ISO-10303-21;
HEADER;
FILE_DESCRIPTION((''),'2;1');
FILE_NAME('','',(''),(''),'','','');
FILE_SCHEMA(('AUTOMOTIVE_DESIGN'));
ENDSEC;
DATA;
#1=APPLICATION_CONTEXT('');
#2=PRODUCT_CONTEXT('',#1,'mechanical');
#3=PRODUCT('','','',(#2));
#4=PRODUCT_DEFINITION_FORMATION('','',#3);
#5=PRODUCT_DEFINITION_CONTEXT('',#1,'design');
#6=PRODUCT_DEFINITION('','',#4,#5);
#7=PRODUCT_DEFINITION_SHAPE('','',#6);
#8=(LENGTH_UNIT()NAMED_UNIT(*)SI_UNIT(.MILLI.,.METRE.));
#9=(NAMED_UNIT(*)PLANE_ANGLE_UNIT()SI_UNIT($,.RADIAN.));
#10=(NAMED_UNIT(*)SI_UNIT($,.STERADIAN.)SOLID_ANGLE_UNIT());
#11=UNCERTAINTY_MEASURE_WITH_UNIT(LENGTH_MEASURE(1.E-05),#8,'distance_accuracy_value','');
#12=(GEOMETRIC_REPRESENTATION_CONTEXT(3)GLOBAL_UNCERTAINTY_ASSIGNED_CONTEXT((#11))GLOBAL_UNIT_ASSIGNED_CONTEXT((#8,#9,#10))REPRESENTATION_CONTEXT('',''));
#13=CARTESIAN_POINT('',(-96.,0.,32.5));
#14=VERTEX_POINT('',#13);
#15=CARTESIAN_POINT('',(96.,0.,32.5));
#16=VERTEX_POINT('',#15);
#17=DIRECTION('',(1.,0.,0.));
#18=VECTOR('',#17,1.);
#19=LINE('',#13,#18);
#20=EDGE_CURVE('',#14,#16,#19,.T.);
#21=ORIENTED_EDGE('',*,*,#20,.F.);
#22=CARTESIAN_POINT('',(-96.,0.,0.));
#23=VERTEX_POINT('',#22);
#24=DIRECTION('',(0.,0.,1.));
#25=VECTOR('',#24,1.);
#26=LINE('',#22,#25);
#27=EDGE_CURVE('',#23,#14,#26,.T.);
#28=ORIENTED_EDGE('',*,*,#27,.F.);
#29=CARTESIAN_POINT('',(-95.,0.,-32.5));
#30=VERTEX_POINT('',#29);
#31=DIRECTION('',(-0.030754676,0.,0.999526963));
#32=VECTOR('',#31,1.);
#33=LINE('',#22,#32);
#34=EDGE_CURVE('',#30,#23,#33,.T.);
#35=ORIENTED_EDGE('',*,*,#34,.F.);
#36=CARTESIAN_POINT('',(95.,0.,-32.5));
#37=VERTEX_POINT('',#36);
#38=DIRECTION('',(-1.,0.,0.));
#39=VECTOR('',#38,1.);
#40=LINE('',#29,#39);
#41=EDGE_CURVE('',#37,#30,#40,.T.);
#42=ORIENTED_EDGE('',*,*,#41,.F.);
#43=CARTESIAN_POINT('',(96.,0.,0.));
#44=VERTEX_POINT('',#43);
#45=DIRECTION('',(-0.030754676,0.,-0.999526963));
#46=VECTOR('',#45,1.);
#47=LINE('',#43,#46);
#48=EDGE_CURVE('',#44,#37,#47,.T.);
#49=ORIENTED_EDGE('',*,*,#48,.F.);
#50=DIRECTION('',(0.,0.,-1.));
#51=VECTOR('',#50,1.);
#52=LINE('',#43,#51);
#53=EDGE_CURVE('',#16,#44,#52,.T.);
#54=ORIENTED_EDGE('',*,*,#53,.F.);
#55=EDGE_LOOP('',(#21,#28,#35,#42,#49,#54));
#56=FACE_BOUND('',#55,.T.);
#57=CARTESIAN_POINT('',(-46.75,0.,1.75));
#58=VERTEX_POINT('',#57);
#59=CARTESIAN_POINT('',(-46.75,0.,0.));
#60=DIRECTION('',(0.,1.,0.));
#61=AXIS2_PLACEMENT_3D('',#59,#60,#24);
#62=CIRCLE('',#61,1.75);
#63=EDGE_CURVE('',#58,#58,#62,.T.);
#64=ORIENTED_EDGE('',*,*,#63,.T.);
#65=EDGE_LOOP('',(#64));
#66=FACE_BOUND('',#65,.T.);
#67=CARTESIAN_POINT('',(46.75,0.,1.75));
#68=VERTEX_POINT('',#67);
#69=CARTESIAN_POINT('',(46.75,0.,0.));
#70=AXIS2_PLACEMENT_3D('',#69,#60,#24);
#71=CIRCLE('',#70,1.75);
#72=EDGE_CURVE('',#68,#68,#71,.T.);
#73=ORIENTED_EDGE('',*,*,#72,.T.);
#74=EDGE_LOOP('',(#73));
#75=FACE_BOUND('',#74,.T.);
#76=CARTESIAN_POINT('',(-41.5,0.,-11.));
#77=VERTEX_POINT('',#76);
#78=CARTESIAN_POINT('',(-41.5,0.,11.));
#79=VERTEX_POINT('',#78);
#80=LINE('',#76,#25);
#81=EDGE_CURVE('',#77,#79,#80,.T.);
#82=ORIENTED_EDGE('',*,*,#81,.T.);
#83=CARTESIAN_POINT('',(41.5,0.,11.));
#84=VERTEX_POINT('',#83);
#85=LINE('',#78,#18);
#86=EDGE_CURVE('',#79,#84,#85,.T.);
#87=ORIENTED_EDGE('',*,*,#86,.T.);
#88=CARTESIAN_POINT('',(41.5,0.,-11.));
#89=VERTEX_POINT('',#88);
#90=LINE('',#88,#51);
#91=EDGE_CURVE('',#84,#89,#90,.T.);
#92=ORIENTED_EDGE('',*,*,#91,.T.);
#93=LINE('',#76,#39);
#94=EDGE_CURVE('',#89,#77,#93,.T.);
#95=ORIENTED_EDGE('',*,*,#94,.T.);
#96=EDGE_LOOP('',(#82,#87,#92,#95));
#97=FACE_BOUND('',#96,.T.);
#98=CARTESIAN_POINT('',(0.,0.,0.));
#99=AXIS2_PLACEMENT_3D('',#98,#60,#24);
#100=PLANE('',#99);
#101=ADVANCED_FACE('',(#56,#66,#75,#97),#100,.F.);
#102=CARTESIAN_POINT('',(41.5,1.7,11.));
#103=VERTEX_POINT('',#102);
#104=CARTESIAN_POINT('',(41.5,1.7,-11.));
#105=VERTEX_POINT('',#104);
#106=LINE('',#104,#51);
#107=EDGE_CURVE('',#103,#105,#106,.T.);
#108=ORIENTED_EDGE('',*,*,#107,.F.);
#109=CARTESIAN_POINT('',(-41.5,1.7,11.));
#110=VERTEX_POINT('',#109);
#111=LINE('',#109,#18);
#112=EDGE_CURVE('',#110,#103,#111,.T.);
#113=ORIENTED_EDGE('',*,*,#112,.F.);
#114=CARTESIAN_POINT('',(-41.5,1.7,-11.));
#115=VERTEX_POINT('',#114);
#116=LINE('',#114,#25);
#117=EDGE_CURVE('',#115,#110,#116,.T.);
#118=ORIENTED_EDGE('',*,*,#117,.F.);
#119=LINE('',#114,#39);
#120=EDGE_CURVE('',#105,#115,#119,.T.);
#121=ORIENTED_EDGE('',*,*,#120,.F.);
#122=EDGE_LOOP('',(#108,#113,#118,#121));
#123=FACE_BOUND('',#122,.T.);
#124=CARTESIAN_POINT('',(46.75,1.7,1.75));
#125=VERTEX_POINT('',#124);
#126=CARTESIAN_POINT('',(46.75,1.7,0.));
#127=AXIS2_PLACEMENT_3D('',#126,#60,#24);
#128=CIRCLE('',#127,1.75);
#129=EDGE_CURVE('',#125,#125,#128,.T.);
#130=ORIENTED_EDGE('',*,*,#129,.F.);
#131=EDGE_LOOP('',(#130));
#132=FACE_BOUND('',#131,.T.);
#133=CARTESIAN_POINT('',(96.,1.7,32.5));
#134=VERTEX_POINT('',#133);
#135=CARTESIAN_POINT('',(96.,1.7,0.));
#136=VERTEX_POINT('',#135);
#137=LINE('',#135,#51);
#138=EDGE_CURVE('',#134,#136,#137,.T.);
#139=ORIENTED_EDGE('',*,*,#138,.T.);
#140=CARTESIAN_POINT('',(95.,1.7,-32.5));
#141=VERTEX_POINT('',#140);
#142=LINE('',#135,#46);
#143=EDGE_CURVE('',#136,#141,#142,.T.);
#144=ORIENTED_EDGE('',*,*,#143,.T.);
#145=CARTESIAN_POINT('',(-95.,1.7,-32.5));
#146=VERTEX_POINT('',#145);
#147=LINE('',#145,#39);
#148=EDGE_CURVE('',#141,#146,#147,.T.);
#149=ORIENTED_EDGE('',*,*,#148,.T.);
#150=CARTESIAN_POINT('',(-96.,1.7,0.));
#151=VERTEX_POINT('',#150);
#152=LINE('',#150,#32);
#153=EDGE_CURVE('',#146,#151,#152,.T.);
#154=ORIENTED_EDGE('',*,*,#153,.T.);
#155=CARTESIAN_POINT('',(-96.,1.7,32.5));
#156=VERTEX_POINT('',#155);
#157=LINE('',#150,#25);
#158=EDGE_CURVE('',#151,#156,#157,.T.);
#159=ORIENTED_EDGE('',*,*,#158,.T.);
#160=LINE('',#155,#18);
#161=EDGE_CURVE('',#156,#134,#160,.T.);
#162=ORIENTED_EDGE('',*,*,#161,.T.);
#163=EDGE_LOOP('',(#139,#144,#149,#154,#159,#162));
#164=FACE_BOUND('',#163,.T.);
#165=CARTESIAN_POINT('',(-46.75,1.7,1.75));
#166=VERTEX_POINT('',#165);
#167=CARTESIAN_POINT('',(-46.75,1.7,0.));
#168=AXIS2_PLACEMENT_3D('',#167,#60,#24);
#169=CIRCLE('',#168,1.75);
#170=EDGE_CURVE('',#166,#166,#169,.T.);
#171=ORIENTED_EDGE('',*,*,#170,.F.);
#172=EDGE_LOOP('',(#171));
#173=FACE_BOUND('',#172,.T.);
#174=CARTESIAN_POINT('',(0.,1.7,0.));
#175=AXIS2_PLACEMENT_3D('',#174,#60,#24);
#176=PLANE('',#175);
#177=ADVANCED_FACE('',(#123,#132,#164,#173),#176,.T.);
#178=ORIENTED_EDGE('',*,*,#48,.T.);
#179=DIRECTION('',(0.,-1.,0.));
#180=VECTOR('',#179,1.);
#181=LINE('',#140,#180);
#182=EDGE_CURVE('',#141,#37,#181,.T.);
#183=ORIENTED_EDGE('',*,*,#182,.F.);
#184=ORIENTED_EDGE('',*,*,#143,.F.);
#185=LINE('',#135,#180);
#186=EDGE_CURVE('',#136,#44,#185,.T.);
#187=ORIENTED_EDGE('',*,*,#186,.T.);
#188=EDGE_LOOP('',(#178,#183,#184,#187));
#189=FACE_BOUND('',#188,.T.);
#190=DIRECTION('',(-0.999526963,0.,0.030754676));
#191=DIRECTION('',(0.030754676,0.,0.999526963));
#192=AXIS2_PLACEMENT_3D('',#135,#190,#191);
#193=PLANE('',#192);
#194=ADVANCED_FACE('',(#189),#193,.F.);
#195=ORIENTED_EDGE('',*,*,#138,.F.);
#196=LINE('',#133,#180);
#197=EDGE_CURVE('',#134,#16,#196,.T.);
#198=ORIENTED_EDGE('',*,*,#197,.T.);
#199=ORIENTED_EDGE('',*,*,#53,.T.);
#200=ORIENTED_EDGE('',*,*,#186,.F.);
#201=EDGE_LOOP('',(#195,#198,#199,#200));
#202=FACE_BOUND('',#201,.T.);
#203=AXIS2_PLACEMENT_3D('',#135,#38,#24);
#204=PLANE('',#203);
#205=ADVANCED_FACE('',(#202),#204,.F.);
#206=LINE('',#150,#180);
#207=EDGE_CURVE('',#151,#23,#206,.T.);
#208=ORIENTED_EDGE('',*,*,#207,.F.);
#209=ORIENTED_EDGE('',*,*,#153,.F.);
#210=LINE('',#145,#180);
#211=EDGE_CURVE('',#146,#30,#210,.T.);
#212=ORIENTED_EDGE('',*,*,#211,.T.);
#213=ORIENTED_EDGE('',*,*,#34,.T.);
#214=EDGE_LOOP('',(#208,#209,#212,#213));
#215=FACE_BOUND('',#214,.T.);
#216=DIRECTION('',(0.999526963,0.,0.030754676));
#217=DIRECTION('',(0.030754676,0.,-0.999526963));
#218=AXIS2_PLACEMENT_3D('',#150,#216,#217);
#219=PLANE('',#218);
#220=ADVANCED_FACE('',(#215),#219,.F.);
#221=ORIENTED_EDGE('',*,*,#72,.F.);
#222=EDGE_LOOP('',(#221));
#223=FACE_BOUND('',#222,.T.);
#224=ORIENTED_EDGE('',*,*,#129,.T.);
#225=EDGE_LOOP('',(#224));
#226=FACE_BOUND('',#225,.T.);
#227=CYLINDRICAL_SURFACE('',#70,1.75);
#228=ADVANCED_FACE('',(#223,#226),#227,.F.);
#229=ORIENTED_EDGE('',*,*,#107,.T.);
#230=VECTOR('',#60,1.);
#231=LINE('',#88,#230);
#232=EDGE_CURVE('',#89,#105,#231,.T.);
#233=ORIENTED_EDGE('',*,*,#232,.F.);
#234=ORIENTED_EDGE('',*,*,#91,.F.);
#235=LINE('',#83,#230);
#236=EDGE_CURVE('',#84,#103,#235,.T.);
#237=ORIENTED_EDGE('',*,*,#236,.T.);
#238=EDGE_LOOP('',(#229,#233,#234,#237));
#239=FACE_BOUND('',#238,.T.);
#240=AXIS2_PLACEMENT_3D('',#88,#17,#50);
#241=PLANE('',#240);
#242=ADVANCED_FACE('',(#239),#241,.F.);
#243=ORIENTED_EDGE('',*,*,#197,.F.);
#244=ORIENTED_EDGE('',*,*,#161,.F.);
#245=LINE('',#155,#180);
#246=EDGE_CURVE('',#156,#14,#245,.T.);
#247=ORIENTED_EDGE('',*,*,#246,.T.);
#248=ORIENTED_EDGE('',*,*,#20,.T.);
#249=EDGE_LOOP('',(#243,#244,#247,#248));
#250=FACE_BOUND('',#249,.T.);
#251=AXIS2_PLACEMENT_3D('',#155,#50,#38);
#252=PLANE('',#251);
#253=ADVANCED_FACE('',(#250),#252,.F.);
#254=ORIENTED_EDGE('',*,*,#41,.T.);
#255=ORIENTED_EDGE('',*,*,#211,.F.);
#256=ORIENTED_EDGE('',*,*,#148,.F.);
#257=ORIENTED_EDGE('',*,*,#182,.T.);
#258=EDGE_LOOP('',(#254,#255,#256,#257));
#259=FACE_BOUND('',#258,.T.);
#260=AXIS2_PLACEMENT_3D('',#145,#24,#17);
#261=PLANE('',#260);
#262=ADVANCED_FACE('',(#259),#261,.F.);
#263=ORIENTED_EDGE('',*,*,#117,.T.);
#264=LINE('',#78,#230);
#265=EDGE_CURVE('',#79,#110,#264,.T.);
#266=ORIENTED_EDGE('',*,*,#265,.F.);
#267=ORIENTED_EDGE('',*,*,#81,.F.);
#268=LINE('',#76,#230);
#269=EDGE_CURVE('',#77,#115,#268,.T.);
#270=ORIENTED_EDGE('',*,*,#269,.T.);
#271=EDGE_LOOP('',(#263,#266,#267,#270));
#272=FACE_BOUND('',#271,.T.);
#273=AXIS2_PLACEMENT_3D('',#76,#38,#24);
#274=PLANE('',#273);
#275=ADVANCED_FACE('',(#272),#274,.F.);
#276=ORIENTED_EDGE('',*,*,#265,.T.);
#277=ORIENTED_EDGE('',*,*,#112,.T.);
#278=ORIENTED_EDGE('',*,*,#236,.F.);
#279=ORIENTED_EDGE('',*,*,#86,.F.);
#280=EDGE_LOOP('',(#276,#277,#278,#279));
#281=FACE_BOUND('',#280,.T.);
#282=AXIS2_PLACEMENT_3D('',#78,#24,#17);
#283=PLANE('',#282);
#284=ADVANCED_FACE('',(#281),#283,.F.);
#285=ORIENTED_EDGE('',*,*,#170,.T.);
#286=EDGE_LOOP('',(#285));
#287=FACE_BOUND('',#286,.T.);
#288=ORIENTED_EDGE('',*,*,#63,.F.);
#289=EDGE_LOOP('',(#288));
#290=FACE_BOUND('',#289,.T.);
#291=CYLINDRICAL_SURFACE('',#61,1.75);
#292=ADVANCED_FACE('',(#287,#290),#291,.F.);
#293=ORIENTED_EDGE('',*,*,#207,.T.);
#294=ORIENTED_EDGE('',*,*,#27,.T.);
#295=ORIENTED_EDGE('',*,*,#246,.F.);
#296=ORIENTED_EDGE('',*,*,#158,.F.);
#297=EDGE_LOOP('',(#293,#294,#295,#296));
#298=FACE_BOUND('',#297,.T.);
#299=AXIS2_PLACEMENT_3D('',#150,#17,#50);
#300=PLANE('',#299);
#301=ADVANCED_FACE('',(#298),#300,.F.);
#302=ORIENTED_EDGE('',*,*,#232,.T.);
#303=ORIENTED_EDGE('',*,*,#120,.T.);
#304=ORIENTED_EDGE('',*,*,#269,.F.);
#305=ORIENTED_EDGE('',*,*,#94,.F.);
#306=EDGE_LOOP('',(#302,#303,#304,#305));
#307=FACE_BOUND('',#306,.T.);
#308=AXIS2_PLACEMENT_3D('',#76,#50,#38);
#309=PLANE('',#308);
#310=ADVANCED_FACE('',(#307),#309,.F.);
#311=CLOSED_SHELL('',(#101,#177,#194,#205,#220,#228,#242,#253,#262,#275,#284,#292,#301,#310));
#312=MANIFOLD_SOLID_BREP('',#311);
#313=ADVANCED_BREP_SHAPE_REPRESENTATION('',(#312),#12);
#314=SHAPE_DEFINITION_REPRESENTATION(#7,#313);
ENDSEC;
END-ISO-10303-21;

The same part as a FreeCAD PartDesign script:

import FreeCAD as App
import Part
import Sketcher

V = App.Vector
Q = App.Units.Quantity


def add_polygon(sketch, points):
    """Adds a closed chain of lines whose ends are joined by coincident constraints."""
    first, n = sketch.GeometryCount, len(points)
    for a, b in zip(points, points[1:] + points[:1]):
        sketch.addGeometry(Part.LineSegment(App.Vector(*a, 0), App.Vector(*b, 0)), False)
    for i in range(n):
        sketch.addConstraint(Sketcher.Constraint("Coincident", first + i, 2, first + (i + 1) % n, 1))

doc = App.newDocument("Part")
body = doc.addObject("PartDesign::Body", "Body")

# Sketch on XZ plane
sketch1 = doc.addObject("Sketcher::SketchObject", "Sketch")
body.addObject(sketch1)
sketch1.AttachmentSupport = (doc.XZ_Plane, [""])
sketch1.MapMode = "FlatFace"
add_polygon(sketch1, [(-95, -32), (-96, 0), (-96, 32), (96, 32), (96, 0), (95, -32)])  # lines 0-5
sketch1.addConstraint([
    Sketcher.Constraint("Vertical", 1),
    Sketcher.Constraint("Horizontal", 2),
    Sketcher.Constraint("Vertical", 3),
    Sketcher.Constraint("Horizontal", 5),
    Sketcher.Constraint("Symmetric", 0, 2, 3, 2, -1, 1),
    Sketcher.Constraint("PointOnObject", 0, 2, -1),
    Sketcher.Constraint("Equal", 0, 4),
    Sketcher.Constraint("DistanceX", 2, 1, 2, 2, Q("192 mm")),
    Sketcher.Constraint("DistanceX", 5, 2, 5, 1, Q("190 mm")),
    Sketcher.Constraint("DistanceY", 1, 1, 1, 2, Q("32.5 mm")),
    Sketcher.Constraint("DistanceY", 4, 2, 2, 2, Q("65 mm")),
])
pad1 = doc.addObject("PartDesign::Pad", "Pad")
body.addObject(pad1)
pad1.Profile = sketch1
pad1.Length = 1.7
pad1.Reversed = True

# Sketch on XZ plane
sketch2 = doc.addObject("Sketcher::SketchObject", "Sketch001")
body.addObject(sketch2)
sketch2.AttachmentSupport = (doc.XZ_Plane, [""])
sketch2.MapMode = "FlatFace"
sketch2.AttachmentOffset = App.Placement(V(0, 0, -1.7), App.Rotation())
sketch2.addGeometry(Part.Circle(V(46.8, 0, 0), V(0, 0, 1), 1.8), False)  # 0
sketch2.addGeometry(Part.Circle(V(-46.8, 0, 0), V(0, 0, 1), 1.8), False)  # 1
add_polygon(sketch2, [(-41.5, -11), (-41.5, 11), (41.5, 11), (41.5, -11)])  # lines 2-5
sketch2.addConstraint([
    Sketcher.Constraint("Vertical", 2),
    Sketcher.Constraint("Horizontal", 3),
    Sketcher.Constraint("Vertical", 4),
    Sketcher.Constraint("Horizontal", 5),
    Sketcher.Constraint("Equal", 0, 1),
    Sketcher.Constraint("Symmetric", 0, 3, 1, 3, -1, 1),
    Sketcher.Constraint("Symmetric", 2, 2, 4, 2, -1, 1),
    Sketcher.Constraint("PointOnObject", 0, 3, -1),
    Sketcher.Constraint("Diameter", 0, Q("3.5 mm")),
    Sketcher.Constraint("DistanceX", 3, 1, 3, 2, Q("83 mm")),
    Sketcher.Constraint("DistanceY", 2, 1, 2, 2, Q("22 mm")),
    Sketcher.Constraint("DistanceX", 1, 3, 0, 3, Q("93.5 mm")),
])
pocket1 = doc.addObject("PartDesign::Pocket", "Pocket")
body.addObject(pocket1)
pocket1.Profile = sketch2
pocket1.Length = 1.7
pocket1.Reversed = True

doc.recompute()
